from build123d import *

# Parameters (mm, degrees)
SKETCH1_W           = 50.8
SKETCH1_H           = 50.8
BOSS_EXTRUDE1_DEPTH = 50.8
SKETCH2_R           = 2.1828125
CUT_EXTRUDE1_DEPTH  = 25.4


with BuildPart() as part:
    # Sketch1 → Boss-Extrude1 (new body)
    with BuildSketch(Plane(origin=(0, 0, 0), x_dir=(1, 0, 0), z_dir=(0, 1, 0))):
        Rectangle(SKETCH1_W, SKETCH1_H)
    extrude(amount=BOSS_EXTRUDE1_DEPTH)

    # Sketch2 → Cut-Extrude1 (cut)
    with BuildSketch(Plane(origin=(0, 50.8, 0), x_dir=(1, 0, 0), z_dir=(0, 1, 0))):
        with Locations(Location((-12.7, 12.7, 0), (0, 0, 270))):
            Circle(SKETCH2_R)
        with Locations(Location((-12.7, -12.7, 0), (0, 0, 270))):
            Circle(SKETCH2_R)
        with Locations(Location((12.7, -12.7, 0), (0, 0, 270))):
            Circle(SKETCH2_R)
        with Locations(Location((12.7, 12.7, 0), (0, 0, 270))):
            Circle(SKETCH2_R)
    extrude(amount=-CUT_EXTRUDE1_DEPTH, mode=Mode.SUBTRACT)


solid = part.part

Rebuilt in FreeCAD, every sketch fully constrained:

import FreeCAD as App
import Part
import Sketcher

V = App.Vector
Q = App.Units.Quantity


def add_polygon(sketch, points):
    """Adds a closed chain of lines whose ends are joined by coincident constraints."""
    first, n = sketch.GeometryCount, len(points)
    for a, b in zip(points, points[1:] + points[:1]):
        sketch.addGeometry(Part.LineSegment(App.Vector(*a, 0), App.Vector(*b, 0)), False)
    for i in range(n):
        sketch.addConstraint(Sketcher.Constraint("Coincident", first + i, 2, first + (i + 1) % n, 1))

doc = App.newDocument("Part")
params = doc.addObject("Spreadsheet::Sheet", "Params")
for row, (alias, value) in enumerate([
    ("sketch1_width", "2 in"),
    ("pad1_length", "2 in"),
    ("sketch2_diameter", "0.171875 in"),
    ("pocket1_length", "1 in"),
], start=1):
    params.set(f"A{row}", alias)
    params.set(f"B{row}", "=" + value)
    params.setAlias(f"B{row}", alias)

body = doc.addObject("PartDesign::Body", "Body")

# Sketch on XZ plane
sketch1 = body.newObject("Sketcher::SketchObject", "Sketch")
sketch1.AttachmentSupport = (doc.getObject("XZ_Plane"), [""])
sketch1.MapMode = "FlatFace"
add_polygon(sketch1, [(-25, -25), (-25, 25), (25, 25), (25, -25)])  # lines 0-3
sketch1.addConstraint([
    Sketcher.Constraint("Vertical", 0),
    Sketcher.Constraint("Horizontal", 1),
    Sketcher.Constraint("Vertical", 2),
    Sketcher.Constraint("Horizontal", 3),
    Sketcher.Constraint("Symmetric", 0, 2, 2, 2, -1, 1),
    Sketcher.Constraint("Equal", 3, 0),
    Sketcher.Constraint("DistanceX", 1, 1, 1, 2, Q("2 in")),
])
sketch1.setExpression("Constraints[10]", "Params.sketch1_width")
pad1 = body.newObject("PartDesign::Pad", "Pad")
pad1.Profile = sketch1
pad1.setExpression("Length", "Params.pad1_length")
pad1.Reversed = True

# Sketch on XZ plane
sketch2 = body.newObject("Sketcher::SketchObject", "Sketch001")
sketch2.AttachmentSupport = (doc.getObject("XZ_Plane"), [""])
sketch2.MapMode = "FlatFace"
sketch2.AttachmentOffset = App.Placement(V(0, 0, -2 * 25.4), App.Rotation())
sketch2.addGeometry([
    Part.Circle(V(-12.7, -12.7, 0), V(0, 0, 1), 2.2),
    Part.Circle(V(-12.7, 12.7, 0), V(0, 0, 1), 2.2),
    Part.Circle(V(12.7, 12.7, 0), V(0, 0, 1), 2.2),
    Part.Circle(V(12.7, -12.7, 0), V(0, 0, 1), 2.2),
], False)
sketch2.addConstraint([
    Sketcher.Constraint("Equal", 0, 1),
    Sketcher.Constraint("Equal", 1, 2),
    Sketcher.Constraint("Equal", 2, 3),
    Sketcher.Constraint("Symmetric", 0, 3, 2, 3, -1, 1),
    Sketcher.Constraint("Symmetric", 1, 3, 3, 3, -1, 1),
    Sketcher.Constraint("Symmetric", 1, 3, 2, 3, -2),
    Sketcher.Constraint("Diameter", 0, Q("0.171875 in")),
    Sketcher.Constraint("DistanceY", 0, 3, 1, 3, Q("1 in")),
    Sketcher.Constraint("DistanceX", 1, 3, 2, 3, Q("1 in")),
])
sketch2.setExpression("Constraints[6]", "Params.sketch2_diameter")
pocket1 = body.newObject("PartDesign::Pocket", "Pocket")
pocket1.Profile = sketch2
pocket1.setExpression("Length", "Params.pocket1_length")
pocket1.Reversed = True

doc.recompute()
